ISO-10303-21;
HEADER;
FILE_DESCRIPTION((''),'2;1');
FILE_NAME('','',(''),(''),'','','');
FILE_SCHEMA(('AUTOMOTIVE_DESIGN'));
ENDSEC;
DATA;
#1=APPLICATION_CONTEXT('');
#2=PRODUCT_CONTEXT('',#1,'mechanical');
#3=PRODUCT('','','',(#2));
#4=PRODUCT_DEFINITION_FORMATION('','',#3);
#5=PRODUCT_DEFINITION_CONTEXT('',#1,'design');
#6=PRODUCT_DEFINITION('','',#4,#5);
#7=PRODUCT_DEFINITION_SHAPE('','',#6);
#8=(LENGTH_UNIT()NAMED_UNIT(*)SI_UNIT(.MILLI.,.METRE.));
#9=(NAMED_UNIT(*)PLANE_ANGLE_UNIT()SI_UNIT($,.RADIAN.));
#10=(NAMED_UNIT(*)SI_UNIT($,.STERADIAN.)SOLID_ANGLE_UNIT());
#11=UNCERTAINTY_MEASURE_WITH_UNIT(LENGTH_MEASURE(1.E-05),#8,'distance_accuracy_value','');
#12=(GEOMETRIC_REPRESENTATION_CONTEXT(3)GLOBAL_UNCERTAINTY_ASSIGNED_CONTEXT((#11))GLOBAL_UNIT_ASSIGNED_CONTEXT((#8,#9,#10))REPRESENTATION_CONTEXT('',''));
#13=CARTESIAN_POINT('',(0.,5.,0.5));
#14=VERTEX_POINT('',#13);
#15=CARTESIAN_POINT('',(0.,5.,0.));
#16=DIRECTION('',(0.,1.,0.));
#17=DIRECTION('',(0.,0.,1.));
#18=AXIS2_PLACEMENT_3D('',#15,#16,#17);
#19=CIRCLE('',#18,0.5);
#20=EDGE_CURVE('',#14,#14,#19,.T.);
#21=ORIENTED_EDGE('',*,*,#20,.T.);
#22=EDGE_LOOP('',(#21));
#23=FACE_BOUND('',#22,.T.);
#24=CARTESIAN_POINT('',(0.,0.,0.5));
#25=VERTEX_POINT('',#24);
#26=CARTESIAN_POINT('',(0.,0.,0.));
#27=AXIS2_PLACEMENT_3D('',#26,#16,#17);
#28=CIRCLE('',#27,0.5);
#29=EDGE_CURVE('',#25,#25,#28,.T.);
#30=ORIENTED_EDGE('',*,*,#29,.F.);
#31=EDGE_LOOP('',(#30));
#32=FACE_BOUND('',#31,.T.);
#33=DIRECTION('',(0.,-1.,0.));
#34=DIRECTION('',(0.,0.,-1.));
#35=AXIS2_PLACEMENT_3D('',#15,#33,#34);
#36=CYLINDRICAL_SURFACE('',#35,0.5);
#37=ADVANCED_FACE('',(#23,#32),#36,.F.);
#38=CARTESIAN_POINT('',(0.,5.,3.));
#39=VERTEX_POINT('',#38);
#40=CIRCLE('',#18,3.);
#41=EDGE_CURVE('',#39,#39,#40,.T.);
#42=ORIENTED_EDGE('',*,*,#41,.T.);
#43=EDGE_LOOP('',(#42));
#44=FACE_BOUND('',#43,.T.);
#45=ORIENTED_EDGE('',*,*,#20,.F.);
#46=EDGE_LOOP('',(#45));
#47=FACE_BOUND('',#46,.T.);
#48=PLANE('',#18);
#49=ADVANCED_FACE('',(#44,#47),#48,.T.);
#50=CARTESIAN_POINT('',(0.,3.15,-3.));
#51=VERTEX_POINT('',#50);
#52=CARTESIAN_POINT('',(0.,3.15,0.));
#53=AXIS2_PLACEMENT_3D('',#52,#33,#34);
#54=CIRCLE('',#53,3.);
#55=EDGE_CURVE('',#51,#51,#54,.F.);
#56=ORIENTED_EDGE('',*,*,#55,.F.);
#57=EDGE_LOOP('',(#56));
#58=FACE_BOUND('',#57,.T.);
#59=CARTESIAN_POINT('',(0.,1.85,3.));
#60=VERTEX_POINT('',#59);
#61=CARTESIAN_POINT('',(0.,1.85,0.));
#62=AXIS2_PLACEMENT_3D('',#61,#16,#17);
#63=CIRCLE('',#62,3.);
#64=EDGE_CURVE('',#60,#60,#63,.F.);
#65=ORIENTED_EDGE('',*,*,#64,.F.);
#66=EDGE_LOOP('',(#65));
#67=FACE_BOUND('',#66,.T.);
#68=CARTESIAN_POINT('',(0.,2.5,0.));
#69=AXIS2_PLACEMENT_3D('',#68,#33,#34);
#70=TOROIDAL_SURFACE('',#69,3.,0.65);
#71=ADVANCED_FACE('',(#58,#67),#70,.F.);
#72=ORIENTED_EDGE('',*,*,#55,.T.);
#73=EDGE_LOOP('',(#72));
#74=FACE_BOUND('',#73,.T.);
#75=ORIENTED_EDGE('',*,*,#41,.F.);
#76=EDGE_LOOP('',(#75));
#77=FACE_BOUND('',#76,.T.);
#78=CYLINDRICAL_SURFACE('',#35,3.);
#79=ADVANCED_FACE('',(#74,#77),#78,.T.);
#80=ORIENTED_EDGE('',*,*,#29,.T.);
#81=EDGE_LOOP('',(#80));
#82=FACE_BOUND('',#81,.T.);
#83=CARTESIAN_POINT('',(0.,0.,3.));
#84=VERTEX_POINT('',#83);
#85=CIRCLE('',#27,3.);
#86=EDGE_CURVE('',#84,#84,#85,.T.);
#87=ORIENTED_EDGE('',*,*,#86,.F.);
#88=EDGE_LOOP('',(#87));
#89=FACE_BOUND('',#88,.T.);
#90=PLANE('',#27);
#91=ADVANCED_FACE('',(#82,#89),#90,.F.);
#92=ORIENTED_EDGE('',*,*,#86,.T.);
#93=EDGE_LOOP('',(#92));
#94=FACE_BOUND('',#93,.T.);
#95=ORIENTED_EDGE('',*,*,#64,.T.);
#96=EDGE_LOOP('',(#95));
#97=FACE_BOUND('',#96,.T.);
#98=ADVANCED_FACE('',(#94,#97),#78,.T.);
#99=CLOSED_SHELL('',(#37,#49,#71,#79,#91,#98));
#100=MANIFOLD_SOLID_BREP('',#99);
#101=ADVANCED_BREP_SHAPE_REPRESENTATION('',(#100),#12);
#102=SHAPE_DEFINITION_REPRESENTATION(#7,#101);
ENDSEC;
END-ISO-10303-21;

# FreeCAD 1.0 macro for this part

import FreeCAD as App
import Part
import Sketcher
from FreeCAD import Vector

doc = App.newDocument("Part")
body = doc.addObject("PartDesign::Body", "Body")

# Sketch on XZ plane
sketch1 = doc.addObject("Sketcher::SketchObject", "Sketch")
body.addObject(sketch1)
sketch1.AttachmentSupport = (doc.XZ_Plane, [""])
sketch1.MapMode = "FlatFace"
sketch1.addGeometry(Part.Circle(Vector(0, 0, 0), Vector(0, 0, 1), 3), False)
sketch1.addGeometry(Part.Circle(Vector(0, 0, 0), Vector(0, 0, 1), 0.5), False)
sketch1.addConstraint(Sketcher.Constraint("Coincident", 0, 3, -1, 1))
sketch1.addConstraint(Sketcher.Constraint("Coincident", 1, 3, -1, 1))
sketch1.addConstraint(Sketcher.Constraint("Diameter", 0, 6.0))
sketch1.addConstraint(Sketcher.Constraint("Diameter", 1, 1.0))
pad1 = doc.addObject("PartDesign::Pad", "Pad")
body.addObject(pad1)
pad1.Profile = sketch1
pad1.Length = 5
pad1.Reversed = True

# Sketch on XY plane
sketch2 = doc.addObject("Sketcher::SketchObject", "Sketch001")
body.addObject(sketch2)
sketch2.AttachmentSupport = (doc.XY_Plane, [""])
sketch2.MapMode = "FlatFace"
sketch2.addGeometry(Part.Circle(Vector(3, 2.5, 0), Vector(0, 0, 1), 0.65), False)
sketch2.addConstraint(Sketcher.Constraint("Diameter", 0, 1.3))
sketch2.addConstraint(Sketcher.Constraint("DistanceX", -1, 1, 0, 3, 3.0))
sketch2.addConstraint(Sketcher.Constraint("DistanceY", -1, 1, 0, 3, 2.5))
groove = doc.addObject("PartDesign::Groove", "Groove")
body.addObject(groove)
groove.Profile = sketch2
groove.ReferenceAxis = (sketch2, ["V_Axis"])
groove.Angle = 360

doc.recompute()
